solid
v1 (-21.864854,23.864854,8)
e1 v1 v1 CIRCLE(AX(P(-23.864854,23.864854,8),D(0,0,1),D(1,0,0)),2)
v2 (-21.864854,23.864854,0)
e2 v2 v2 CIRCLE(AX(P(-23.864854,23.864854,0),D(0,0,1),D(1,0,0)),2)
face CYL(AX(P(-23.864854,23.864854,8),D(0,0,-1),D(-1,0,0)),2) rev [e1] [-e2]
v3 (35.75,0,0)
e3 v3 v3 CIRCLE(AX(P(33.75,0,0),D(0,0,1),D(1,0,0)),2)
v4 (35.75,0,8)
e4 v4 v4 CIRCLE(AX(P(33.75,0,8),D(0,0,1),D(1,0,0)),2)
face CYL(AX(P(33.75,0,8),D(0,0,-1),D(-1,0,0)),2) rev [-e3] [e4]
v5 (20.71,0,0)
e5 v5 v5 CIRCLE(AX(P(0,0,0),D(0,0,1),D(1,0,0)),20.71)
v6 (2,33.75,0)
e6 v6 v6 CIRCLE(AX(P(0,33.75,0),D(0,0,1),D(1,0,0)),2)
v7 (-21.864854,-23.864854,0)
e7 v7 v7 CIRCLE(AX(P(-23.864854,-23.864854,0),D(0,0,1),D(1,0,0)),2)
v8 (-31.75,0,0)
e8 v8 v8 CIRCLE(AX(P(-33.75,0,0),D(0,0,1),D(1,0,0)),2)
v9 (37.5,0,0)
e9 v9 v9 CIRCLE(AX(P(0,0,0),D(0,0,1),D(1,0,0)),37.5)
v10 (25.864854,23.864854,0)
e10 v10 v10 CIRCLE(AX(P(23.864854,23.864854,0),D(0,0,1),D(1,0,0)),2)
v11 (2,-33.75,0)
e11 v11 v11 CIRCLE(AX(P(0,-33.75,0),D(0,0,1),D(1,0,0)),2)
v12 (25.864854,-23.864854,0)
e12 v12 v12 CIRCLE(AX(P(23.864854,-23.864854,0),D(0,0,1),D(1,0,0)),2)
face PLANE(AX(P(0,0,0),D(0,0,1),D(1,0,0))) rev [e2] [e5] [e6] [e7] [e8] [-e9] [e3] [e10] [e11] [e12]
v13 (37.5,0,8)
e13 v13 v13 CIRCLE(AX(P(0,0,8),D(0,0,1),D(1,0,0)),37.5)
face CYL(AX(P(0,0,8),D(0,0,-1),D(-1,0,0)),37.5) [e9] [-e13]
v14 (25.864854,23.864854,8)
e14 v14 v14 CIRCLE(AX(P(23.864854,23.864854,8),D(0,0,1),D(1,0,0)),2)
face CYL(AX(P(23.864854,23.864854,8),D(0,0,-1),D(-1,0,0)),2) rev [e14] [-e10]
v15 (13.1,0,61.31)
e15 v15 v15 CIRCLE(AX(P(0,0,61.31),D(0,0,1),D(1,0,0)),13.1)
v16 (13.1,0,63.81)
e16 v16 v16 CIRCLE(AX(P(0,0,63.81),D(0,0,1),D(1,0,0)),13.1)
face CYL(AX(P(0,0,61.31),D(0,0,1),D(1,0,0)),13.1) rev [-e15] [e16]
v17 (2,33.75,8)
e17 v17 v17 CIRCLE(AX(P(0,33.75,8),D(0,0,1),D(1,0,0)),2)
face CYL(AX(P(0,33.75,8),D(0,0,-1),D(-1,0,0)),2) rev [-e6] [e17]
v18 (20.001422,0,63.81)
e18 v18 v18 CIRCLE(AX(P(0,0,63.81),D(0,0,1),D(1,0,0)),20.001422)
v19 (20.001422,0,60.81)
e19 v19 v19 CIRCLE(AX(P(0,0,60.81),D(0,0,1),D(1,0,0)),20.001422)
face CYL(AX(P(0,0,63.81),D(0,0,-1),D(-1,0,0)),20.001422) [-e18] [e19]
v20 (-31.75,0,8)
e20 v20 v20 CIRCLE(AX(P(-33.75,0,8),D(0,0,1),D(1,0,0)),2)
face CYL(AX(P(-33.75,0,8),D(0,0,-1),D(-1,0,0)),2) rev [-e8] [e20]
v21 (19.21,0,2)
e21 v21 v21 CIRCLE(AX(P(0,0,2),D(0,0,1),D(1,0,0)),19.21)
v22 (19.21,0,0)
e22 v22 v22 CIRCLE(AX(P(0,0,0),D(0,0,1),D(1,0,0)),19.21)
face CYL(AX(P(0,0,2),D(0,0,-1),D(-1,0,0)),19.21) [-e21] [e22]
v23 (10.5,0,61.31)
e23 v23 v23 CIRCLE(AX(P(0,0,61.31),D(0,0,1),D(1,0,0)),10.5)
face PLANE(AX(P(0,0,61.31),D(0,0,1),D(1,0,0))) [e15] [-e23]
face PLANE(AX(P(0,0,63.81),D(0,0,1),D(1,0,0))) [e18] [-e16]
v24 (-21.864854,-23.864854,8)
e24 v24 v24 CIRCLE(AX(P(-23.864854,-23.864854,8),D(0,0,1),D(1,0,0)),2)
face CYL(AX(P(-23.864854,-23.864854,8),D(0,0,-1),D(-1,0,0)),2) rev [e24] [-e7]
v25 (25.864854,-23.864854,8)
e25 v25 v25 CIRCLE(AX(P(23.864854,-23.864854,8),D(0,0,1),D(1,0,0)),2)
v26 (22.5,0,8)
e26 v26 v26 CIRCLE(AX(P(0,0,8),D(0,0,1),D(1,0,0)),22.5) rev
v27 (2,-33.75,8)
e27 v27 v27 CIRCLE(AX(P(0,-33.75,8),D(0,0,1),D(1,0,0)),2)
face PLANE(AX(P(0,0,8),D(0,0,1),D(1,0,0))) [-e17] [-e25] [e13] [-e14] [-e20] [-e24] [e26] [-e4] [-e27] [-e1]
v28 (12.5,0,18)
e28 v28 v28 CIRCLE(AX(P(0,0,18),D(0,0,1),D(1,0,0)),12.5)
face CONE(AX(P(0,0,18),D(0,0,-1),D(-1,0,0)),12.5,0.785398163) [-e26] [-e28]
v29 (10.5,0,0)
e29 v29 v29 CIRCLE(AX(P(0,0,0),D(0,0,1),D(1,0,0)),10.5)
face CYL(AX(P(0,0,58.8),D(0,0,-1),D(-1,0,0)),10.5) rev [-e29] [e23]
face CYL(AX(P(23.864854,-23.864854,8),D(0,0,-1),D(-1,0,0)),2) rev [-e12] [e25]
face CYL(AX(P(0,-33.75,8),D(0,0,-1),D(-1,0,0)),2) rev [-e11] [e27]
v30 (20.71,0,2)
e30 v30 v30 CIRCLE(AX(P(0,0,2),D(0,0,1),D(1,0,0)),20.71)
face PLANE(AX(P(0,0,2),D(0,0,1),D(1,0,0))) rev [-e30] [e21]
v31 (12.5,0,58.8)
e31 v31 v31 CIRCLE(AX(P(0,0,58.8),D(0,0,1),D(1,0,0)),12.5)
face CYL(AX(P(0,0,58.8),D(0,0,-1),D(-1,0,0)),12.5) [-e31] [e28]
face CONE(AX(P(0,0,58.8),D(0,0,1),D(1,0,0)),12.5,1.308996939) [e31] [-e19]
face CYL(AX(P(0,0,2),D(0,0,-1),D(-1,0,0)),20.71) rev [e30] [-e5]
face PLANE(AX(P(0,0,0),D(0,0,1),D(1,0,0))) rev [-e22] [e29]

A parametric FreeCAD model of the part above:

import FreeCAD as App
import Part
import Sketcher
Q = App.Units.Quantity


def edges_at(feature, points):
    """Names of the edges that pass closest to the given points."""
    edges = feature.Shape.Edges
    near = lambda p: min(range(len(edges)), key=lambda i: edges[i].distToShape(Part.Vertex(*p))[0])
    return sorted({f"Edge{near(p) + 1}" for p in points})


def faces_at(feature, points):
    """Names of the faces that lie closest to the given points."""
    faces = feature.Shape.Faces
    near = lambda p: min(range(len(faces)), key=lambda i: faces[i].distToShape(Part.Vertex(*p))[0])
    return sorted({f"Face{near(p) + 1}" for p in points})

doc = App.newDocument("Part")
params = doc.addObject("Spreadsheet::Sheet", "Params")
for row, (alias, value) in enumerate([
    ("sketch1_diameter", "75 mm"),
    ("sketch1_diameter2", "10.7 mm"),
    ("pad1_length", "8 mm"),
    ("sketch2_diameter", "4 mm"),
    ("sketch3_diameter", "41.42 mm"),
    ("sketch3_diameter2", "38.42 mm"),
    ("pocket2_length", "2 mm"),
    ("sketch4_diameter", "25 mm"),
    ("sketch4_diameter2", "21 mm"),
    ("pad2_length", "50.8 mm"),
    ("sketch5_diameter", "25 mm"),
    ("pad3_length", "2.01 mm"),
    ("draft_angle", "75 deg"),
    ("sketch6_diameter", "21 mm"),
    ("sketch7_diameter", "21 mm"),
    ("pad4_length", "3 mm"),
    ("sketch8_diameter", "26.2 mm"),
    ("pocket4_length", "2.5 mm"),
    ("chamfer_size", "10 mm"),
], start=1):
    params.set(f"A{row}", alias)
    params.set(f"B{row}", "=" + value)
    params.setAlias(f"B{row}", alias)

body = doc.addObject("PartDesign::Body", "Body")

# Sketch on XY plane
sketch1 = body.newObject("Sketcher::SketchObject", "Sketch")
sketch1.AttachmentSupport = (doc.getObject("XY_Plane"), [""])
sketch1.MapMode = "FlatFace"
sketch1.addGeometry([
    Part.Circle(App.Vector(0, 0, 0), App.Vector(0, 0, 1), 38),
    Part.Circle(App.Vector(0, 0, 0), App.Vector(0, 0, 1), 5),
], False)
sketch1.addConstraint([
    Sketcher.Constraint("Coincident", 0, 3, -1, 1),
    Sketcher.Constraint("Coincident", 1, 3, -1, 1),
    Sketcher.Constraint("Diameter", 0, Q("75 mm")),
    Sketcher.Constraint("Diameter", 1, Q("10.7 mm")),
])
sketch1.setExpression("Constraints[2]", "Params.sketch1_diameter")
sketch1.setExpression("Constraints[3]", "Params.sketch1_diameter2")
pad1 = body.newObject("PartDesign::Pad", "Pad")
pad1.Profile = sketch1
pad1.setExpression("Length", "Params.pad1_length")

# Sketch on XY plane
sketch2 = body.newObject("Sketcher::SketchObject", "Sketch001")
sketch2.AttachmentSupport = (doc.getObject("XY_Plane"), [""])
sketch2.MapMode = "FlatFace"
sketch2.addGeometry([
    Part.Circle(App.Vector(0, 33.8, 0), App.Vector(0, 0, 1), 2),  # 0
    Part.Circle(App.Vector(-23.9, 23.9, 0), App.Vector(0, 0, 1), 2),  # 1
    Part.Circle(App.Vector(-33.8, 0, 0), App.Vector(0, 0, 1), 2),  # 2
    Part.Circle(App.Vector(-23.9, -23.9, 0), App.Vector(0, 0, 1), 2),  # 3
    Part.Circle(App.Vector(0, -33.8, 0), App.Vector(0, 0, 1), 2),  # 4
    Part.Circle(App.Vector(23.9, -23.9, 0), App.Vector(0, 0, 1), 2),  # 5
    Part.Circle(App.Vector(33.8, 0, 0), App.Vector(0, 0, 1), 2),  # 6
    Part.Circle(App.Vector(23.9, 23.9, 0), App.Vector(0, 0, 1), 2),  # 7
], False)
sketch2.addConstraint([
    Sketcher.Constraint("Equal", 0, 1),
    Sketcher.Constraint("Equal", 1, 2),
    Sketcher.Constraint("Equal", 2, 3),
    Sketcher.Constraint("Equal", 3, 4),
    Sketcher.Constraint("Equal", 4, 5),
    Sketcher.Constraint("Equal", 5, 6),
    Sketcher.Constraint("Equal", 6, 7),
    Sketcher.Constraint("Symmetric", 0, 3, 4, 3, -1, 1),
    Sketcher.Constraint("Symmetric", 1, 3, 5, 3, -1, 1),
    Sketcher.Constraint("Symmetric", 2, 3, 6, 3, -1, 1),
    Sketcher.Constraint("Symmetric", 3, 3, 7, 3, -1, 1),
    Sketcher.Constraint("Symmetric", 3, 3, 5, 3, -2),
    Sketcher.Constraint("PointOnObject", 0, 3, -2),
    Sketcher.Constraint("PointOnObject", 2, 3, -1),
    Sketcher.Constraint("Diameter", 0, Q("4 mm")),
    Sketcher.Constraint("DistanceY", 4, 3, 0, 3, Q("67.5 mm")),
    Sketcher.Constraint("DistanceX", 2, 3, -1, 1, Q("33.75 mm")),
    Sketcher.Constraint("DistanceX", 1, 3, -1, 1, Q("23.864854 mm")),
    Sketcher.Constraint("DistanceY", -1, 1, 1, 3, Q("23.864854 mm")),
])
sketch2.setExpression("Constraints[14]", "Params.sketch2_diameter")
pocket1 = body.newObject("PartDesign::Pocket", "Pocket")
pocket1.Profile = sketch2
pocket1.Type = "ThroughAll"
pocket1.Reversed = True

# Sketch on XY plane
sketch3 = body.newObject("Sketcher::SketchObject", "Sketch002")
sketch3.AttachmentSupport = (doc.getObject("XY_Plane"), [""])
sketch3.MapMode = "FlatFace"
sketch3.addGeometry([
    Part.Circle(App.Vector(0, 0, 0), App.Vector(0, 0, 1), 21),
    Part.Circle(App.Vector(0, 0, 0), App.Vector(0, 0, 1), 19),
], False)
sketch3.addConstraint([
    Sketcher.Constraint("Coincident", 0, 3, -1, 1),
    Sketcher.Constraint("Coincident", 1, 3, -1, 1),
    Sketcher.Constraint("Diameter", 0, Q("41.42 mm")),
    Sketcher.Constraint("Diameter", 1, Q("38.42 mm")),
])
sketch3.setExpression("Constraints[2]", "Params.sketch3_diameter")
sketch3.setExpression("Constraints[3]", "Params.sketch3_diameter2")
pocket2 = body.newObject("PartDesign::Pocket", "Pocket001")
pocket2.Profile = sketch3
pocket2.setExpression("Length", "Params.pocket2_length")
pocket2.Reversed = True

# Sketch on XY plane
sketch4 = body.newObject("Sketcher::SketchObject", "Sketch003")
sketch4.AttachmentSupport = (doc.getObject("XY_Plane"), [""])
sketch4.MapMode = "FlatFace"
sketch4.AttachmentOffset = App.Placement(App.Vector(0, 0, 8), App.Rotation())
sketch4.addGeometry([
    Part.Circle(App.Vector(0, 0, 0), App.Vector(0, 0, 1), 12),
    Part.Circle(App.Vector(0, 0, 0), App.Vector(0, 0, 1), 10),
], False)
sketch4.addConstraint([
    Sketcher.Constraint("Coincident", 0, 3, -1, 1),
    Sketcher.Constraint("Coincident", 1, 3, -1, 1),
    Sketcher.Constraint("Diameter", 0, Q("25 mm")),
    Sketcher.Constraint("Diameter", 1, Q("21 mm")),
])
sketch4.setExpression("Constraints[2]", "Params.sketch4_diameter")
sketch4.setExpression("Constraints[3]", "Params.sketch4_diameter2")
pad2 = body.newObject("PartDesign::Pad", "Pad001")
pad2.Profile = sketch4
pad2.setExpression("Length", "Params.pad2_length")
body2 = doc.addObject("PartDesign::Body", "Body001")

# Sketch on XY plane
sketch5 = body2.newObject("Sketcher::SketchObject", "Sketch004")
sketch5.AttachmentSupport = (doc.getObject("XY_Plane001"), [""])
sketch5.MapMode = "FlatFace"
sketch5.AttachmentOffset = App.Placement(App.Vector(0, 0, 58.8), App.Rotation())
sketch5.addGeometry(Part.Circle(App.Vector(0, 0, 0), App.Vector(0, 0, 1), 12), False)
sketch5.addConstraint([
    Sketcher.Constraint("Coincident", 0, 3, -1, 1),
    Sketcher.Constraint("Diameter", 0, Q("25 mm")),
])
sketch5.setExpression("Constraints[1]", "Params.sketch5_diameter")
pad3 = body2.newObject("PartDesign::Pad", "Pad002")
pad3.Profile = sketch5
pad3.setExpression("Length", "Params.pad3_length")
doc.recompute()

datumplane = body2.newObject("PartDesign::Plane", "DatumPlane")
datumplane.AttachmentSupport = (doc.getObject("XY_Plane001"), [""])
datumplane.MapMode = "FlatFace"
datumplane.AttachmentOffset = App.Placement(App.Vector(0, 0, 58.8), App.Rotation())
draft = body2.newObject("PartDesign::Draft", "Draft")
draft.Base = (pad3, faces_at(pad3, [(-12.5, 0, 59.805)]))
draft.NeutralPlane = (datumplane, [""])
draft.setExpression("Angle", "Params.draft_angle")
draft.Reversed = True
doc.recompute()

boolean = body.newObject("PartDesign::Boolean", "Boolean")
boolean.Type = "Fuse"
boolean.addObjects([body2])

# Sketch on XY plane
sketch6 = body.newObject("Sketcher::SketchObject", "Sketch005")
sketch6.AttachmentSupport = (doc.getObject("XY_Plane"), [""])
sketch6.MapMode = "FlatFace"
sketch6.AttachmentOffset = App.Placement(App.Vector(0, 0, 60.81), App.Rotation())
sketch6.addGeometry(Part.Circle(App.Vector(0, 0, 0), App.Vector(0, 0, 1), 10), False)
sketch6.addConstraint([
    Sketcher.Constraint("Coincident", 0, 3, -1, 1),
    Sketcher.Constraint("Diameter", 0, Q("21 mm")),
])
sketch6.setExpression("Constraints[1]", "Params.sketch6_diameter")
pocket3 = body.newObject("PartDesign::Pocket", "Pocket002")
pocket3.Profile = sketch6
pocket3.Type = "ThroughAll"

# Sketch on XY plane
sketch7 = body.newObject("Sketcher::SketchObject", "Sketch006")
sketch7.AttachmentSupport = (doc.getObject("XY_Plane"), [""])
sketch7.MapMode = "FlatFace"
sketch7.AttachmentOffset = App.Placement(App.Vector(0, 0, 63.81), App.Rotation())
sketch7.addGeometry([
    Part.Circle(App.Vector(0, 0, 0), App.Vector(0, 0, 1), 20),
    Part.Circle(App.Vector(0, 0, 0), App.Vector(0, 0, 1), 10),
], False)
sketch7.addConstraint([
    Sketcher.Constraint("Coincident", 0, 3, -1, 1),
    Sketcher.Constraint("Coincident", 1, 3, -1, 1),
    Sketcher.Constraint("Diameter", 1, Q("21 mm")),
    Sketcher.Constraint("Diameter", 0, Q("40.002844 mm")),
])
sketch7.setExpression("Constraints[2]", "Params.sketch7_diameter")
pad4 = body.newObject("PartDesign::Pad", "Pad003")
pad4.Profile = sketch7
pad4.setExpression("Length", "Params.pad4_length")
pad4.Reversed = True

# Sketch on XY plane
sketch8 = body.newObject("Sketcher::SketchObject", "Sketch007")
sketch8.AttachmentSupport = (doc.getObject("XY_Plane"), [""])
sketch8.MapMode = "FlatFace"
sketch8.AttachmentOffset = App.Placement(App.Vector(0, 0, 63.81), App.Rotation())
sketch8.addGeometry(Part.Circle(App.Vector(0, 0, 0), App.Vector(0, 0, 1), 13), False)
sketch8.addConstraint([
    Sketcher.Constraint("Coincident", 0, 3, -1, 1),
    Sketcher.Constraint("Diameter", 0, Q("26.2 mm")),
])
sketch8.setExpression("Constraints[1]", "Params.sketch8_diameter")
pocket4 = body.newObject("PartDesign::Pocket", "Pocket003")
pocket4.Profile = sketch8
pocket4.setExpression("Length", "Params.pocket4_length")
doc.recompute()

chamfer = body.newObject("PartDesign::Chamfer", "Chamfer")
chamfer.Base = (pocket4, edges_at(pocket4, [(-12.5, 0, 8)]))
chamfer.setExpression("Size", "Params.chamfer_size")

doc.recompute()
